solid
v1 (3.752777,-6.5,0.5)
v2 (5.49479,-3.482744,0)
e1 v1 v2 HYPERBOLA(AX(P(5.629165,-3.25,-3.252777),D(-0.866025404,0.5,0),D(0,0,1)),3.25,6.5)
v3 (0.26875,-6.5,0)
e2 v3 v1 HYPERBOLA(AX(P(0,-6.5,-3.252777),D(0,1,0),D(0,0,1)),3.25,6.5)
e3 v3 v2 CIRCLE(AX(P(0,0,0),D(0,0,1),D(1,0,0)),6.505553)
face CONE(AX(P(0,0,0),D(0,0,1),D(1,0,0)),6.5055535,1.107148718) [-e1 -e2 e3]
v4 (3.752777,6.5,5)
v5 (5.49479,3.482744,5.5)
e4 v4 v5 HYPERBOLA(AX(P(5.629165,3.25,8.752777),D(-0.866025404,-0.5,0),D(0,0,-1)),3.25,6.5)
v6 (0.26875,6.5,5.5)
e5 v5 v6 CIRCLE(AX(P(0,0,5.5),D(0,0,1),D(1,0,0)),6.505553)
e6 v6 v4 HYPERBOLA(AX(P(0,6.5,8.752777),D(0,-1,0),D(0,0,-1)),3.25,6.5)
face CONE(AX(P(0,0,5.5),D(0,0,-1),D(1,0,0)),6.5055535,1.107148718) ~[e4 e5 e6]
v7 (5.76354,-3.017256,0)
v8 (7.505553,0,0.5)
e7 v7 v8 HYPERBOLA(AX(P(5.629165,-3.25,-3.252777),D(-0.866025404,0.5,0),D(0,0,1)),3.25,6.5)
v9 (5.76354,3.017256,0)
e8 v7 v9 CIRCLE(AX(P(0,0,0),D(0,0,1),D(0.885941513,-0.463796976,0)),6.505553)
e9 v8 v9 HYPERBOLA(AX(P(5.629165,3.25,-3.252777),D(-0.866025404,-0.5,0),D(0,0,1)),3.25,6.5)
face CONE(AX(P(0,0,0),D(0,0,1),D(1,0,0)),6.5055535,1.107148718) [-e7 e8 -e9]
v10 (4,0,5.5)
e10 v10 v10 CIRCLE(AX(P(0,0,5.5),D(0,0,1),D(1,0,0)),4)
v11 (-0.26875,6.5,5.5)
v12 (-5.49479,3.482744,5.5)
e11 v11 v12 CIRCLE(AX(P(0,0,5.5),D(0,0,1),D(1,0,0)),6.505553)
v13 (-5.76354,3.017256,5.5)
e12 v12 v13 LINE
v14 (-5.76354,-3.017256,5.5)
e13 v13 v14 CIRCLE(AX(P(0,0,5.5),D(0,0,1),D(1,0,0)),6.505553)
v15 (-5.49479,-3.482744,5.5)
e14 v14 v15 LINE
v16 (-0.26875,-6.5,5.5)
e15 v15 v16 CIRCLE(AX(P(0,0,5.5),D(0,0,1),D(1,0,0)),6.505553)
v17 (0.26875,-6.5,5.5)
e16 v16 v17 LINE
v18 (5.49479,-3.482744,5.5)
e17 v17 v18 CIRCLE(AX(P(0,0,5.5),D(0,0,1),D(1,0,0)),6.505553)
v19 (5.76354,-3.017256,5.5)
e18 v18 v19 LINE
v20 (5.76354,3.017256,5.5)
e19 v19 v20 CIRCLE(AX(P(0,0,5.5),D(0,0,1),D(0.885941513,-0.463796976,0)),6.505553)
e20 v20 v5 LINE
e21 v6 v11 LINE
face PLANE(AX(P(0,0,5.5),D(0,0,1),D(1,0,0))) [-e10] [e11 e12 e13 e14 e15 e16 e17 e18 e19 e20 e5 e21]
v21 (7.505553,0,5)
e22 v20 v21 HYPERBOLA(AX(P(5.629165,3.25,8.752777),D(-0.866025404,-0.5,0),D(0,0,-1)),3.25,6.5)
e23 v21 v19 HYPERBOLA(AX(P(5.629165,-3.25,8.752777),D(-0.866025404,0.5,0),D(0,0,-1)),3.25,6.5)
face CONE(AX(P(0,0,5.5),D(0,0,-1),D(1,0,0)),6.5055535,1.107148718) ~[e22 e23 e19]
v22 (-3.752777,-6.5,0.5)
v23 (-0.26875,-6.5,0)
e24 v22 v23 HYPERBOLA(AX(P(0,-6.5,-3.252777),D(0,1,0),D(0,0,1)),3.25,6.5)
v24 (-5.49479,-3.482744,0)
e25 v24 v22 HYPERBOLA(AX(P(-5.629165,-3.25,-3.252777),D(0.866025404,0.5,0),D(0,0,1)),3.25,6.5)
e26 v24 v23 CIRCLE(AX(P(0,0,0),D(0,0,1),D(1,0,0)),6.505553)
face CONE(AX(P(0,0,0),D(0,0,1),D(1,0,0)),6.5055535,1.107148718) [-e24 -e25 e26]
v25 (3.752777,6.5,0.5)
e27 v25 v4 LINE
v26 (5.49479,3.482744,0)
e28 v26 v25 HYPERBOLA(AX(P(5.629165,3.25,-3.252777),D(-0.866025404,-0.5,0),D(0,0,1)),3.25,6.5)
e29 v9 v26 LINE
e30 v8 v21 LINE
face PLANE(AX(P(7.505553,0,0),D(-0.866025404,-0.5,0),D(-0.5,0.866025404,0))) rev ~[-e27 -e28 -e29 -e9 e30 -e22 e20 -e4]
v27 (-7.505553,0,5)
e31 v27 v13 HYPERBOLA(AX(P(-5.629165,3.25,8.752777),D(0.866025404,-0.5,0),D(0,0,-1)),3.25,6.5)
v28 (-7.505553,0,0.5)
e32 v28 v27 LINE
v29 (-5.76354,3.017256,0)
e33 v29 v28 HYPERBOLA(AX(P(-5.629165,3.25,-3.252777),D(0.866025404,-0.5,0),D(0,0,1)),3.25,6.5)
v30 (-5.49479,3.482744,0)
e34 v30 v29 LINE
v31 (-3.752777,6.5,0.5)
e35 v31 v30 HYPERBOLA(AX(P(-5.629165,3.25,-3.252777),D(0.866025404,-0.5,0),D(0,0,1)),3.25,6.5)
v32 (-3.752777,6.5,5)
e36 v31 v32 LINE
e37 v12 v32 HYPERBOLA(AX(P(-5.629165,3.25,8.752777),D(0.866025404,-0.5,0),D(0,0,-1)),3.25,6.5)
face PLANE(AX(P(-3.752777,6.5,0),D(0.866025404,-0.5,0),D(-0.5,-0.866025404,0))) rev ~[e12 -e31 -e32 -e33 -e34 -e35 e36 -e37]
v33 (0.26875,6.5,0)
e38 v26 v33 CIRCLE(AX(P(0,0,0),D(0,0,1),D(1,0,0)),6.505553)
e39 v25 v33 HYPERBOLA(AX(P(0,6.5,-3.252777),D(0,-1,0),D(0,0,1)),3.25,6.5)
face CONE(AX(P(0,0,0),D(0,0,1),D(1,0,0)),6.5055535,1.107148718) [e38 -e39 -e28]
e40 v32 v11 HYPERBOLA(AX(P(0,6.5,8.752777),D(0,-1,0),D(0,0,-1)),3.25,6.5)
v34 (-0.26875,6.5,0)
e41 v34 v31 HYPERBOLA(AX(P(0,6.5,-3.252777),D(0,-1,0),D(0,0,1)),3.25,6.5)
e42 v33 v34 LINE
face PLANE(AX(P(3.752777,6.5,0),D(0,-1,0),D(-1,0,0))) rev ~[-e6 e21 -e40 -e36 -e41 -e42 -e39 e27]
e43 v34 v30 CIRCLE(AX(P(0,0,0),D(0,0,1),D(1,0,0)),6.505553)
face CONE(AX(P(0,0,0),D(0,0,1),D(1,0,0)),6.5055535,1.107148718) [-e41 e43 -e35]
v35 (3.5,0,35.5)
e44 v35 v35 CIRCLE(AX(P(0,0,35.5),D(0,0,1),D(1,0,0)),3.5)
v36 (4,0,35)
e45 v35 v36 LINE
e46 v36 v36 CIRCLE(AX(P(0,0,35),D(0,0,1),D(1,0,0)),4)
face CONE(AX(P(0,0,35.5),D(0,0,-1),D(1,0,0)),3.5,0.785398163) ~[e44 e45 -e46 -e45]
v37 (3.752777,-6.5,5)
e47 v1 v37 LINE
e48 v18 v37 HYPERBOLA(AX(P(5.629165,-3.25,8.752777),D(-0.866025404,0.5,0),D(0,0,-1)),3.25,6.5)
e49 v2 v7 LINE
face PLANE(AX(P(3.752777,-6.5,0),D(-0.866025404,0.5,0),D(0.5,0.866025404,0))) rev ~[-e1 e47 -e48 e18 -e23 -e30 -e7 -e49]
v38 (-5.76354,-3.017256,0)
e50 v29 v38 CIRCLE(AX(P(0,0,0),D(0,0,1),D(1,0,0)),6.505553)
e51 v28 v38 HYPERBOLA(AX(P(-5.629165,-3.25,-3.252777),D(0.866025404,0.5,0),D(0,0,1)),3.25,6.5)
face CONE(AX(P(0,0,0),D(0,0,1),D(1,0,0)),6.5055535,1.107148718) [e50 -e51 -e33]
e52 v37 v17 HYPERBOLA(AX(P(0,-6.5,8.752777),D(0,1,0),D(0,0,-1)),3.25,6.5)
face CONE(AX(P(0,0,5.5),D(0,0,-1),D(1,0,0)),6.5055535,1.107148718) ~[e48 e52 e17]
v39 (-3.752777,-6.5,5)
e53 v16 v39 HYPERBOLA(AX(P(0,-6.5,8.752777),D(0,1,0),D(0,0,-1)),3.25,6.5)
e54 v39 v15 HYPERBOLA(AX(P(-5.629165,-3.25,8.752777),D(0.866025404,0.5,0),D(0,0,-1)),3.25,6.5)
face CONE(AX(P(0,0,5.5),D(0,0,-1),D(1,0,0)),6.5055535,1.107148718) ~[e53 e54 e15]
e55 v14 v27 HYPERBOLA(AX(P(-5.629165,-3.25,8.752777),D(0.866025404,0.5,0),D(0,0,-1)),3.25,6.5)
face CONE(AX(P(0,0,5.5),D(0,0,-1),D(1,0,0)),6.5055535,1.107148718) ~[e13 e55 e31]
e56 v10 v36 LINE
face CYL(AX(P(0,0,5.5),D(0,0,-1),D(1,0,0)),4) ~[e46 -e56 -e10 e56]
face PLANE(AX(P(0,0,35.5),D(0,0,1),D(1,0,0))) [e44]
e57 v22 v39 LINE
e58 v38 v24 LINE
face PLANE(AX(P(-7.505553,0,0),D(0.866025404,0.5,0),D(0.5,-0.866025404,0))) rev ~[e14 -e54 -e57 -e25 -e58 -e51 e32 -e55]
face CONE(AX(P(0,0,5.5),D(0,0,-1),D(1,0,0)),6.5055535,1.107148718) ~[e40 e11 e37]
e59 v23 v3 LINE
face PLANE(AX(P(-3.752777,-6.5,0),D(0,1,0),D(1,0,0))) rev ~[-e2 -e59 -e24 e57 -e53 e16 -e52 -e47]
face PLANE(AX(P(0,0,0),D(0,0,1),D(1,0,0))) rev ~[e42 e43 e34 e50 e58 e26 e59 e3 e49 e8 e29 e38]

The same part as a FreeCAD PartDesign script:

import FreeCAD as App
import Part
import Sketcher
from FreeCAD import Vector
Q = App.Units.Quantity


def add_polygon(sketch, points):
    """Adds a closed chain of lines whose ends are joined by coincident constraints."""
    first, n = sketch.GeometryCount, len(points)
    for a, b in zip(points, points[1:] + points[:1]):
        sketch.addGeometry(Part.LineSegment(App.Vector(*a, 0), App.Vector(*b, 0)), False)
    for i in range(n):
        sketch.addConstraint(Sketcher.Constraint("Coincident", first + i, 2, first + (i + 1) % n, 1))

doc = App.newDocument("Part")
params = doc.addObject("Spreadsheet::Sheet", "Params")
for row, (alias, value) in enumerate([
    ("pad1_length", "5.5 mm"),
    ("sketch2_diameter", "8 mm"),
    ("pad2_length", "30 mm"),
    ("sketch3_width", "1 mm"),
    ("sketch3_width2", "0.5 mm"),
    ("groove_angle", "360 deg"),
], start=1):
    params.set(f"A{row}", alias)
    params.set(f"B{row}", "=" + value)
    params.setAlias(f"B{row}", alias)

body = doc.addObject("PartDesign::Body", "Body")

sketch1 = doc.addObject("Sketcher::SketchObject", "Sketch")
body.addObject(sketch1)
sketch1.AttachmentSupport = (doc.XY_Plane, [""])
sketch1.MapMode = "FlatFace"
add_polygon(sketch1, [(8, 0), (4, 6), (-4, 6), (-8, 0), (-4, -6), (4, -6)])
sketch1.addConstraint(Sketcher.Constraint("Horizontal", 1))
sketch1.addConstraint(Sketcher.Constraint("Horizontal", 4))
sketch1.addConstraint(Sketcher.Constraint("Symmetric", 0, 2, 3, 2, -1, 1))
sketch1.addConstraint(Sketcher.Constraint("Symmetric", 2, 2, 5, 2, -1, 1))
sketch1.addConstraint(Sketcher.Constraint("PointOnObject", 2, 2, -1))
sketch1.addConstraint(Sketcher.Constraint("Parallel", 2, 5))
sketch1.addConstraint(Sketcher.Constraint("Vertical", 1, 2, 3, 2))
sketch1.addConstraint(Sketcher.Constraint("Angle", 0, Q("120 deg")))
sketch1.addConstraint(Sketcher.Constraint("DistanceY", 3, 2, 1, 2, Q("13 mm")))
sketch1.addConstraint(Sketcher.Constraint("DistanceX", 1, 2, 1, 1, Q("7.505554 mm")))
pad1 = doc.addObject("PartDesign::Pad", "Pad")
body.addObject(pad1)
pad1.Profile = sketch1
pad1.setExpression("Length", "Params.pad1_length")

sketch2 = doc.addObject("Sketcher::SketchObject", "Sketch001")
body.addObject(sketch2)
sketch2.AttachmentSupport = (doc.XY_Plane, [""])
sketch2.MapMode = "FlatFace"
sketch2.AttachmentOffset = App.Placement(Vector(0, 0, 5.5), App.Rotation())
sketch2.addGeometry(Part.Circle(Vector(0, 0, 0), Vector(0, 0, 1), 4), False)
sketch2.addConstraint(Sketcher.Constraint("Coincident", 0, 3, -1, 1))
sketch2.addConstraint(Sketcher.Constraint("Diameter", 0, Q("8 mm")))
sketch2.setExpression("Constraints[1]", "Params.sketch2_diameter")
pad2 = doc.addObject("PartDesign::Pad", "Pad001")
body.addObject(pad2)
pad2.Profile = sketch2
pad2.setExpression("Length", "Params.pad2_length")

sketch3 = doc.addObject("Sketcher::SketchObject", "Sketch002")
body.addObject(sketch3)
sketch3.AttachmentSupport = (doc.XZ_Plane, [""])
sketch3.MapMode = "FlatFace"
add_polygon(sketch3, [(4, 35.5), (3.5, 35.5), (4, 35)])
add_polygon(sketch3, [(7.5, 5.5), (6.5, 5.5), (7.5, 5)])
add_polygon(sketch3, [(6.5, 0), (7.5, 0), (7.5, 0.5)])
sketch3.addConstraint(Sketcher.Constraint("Horizontal", 0))
sketch3.addConstraint(Sketcher.Constraint("Vertical", 2))
sketch3.addConstraint(Sketcher.Constraint("Horizontal", 3))
sketch3.addConstraint(Sketcher.Constraint("Vertical", 5))
sketch3.addConstraint(Sketcher.Constraint("Horizontal", 6))
sketch3.addConstraint(Sketcher.Constraint("Vertical", 7))
sketch3.addConstraint(Sketcher.Constraint("PointOnObject", 6, 2, -1))
sketch3.addConstraint(Sketcher.Constraint("Vertical", 5, 2, 6, 2))
sketch3.addConstraint(Sketcher.Constraint("Vertical", 3, 2, 8, 2))
sketch3.addConstraint(Sketcher.Constraint("Equal", 0, 2))
sketch3.addConstraint(Sketcher.Constraint("Equal", 2, 5))
sketch3.addConstraint(Sketcher.Constraint("Equal", 5, 7))
sketch3.addConstraint(Sketcher.Constraint("DistanceX", 3, 2, 3, 1, Q("1 mm")))
sketch3.addConstraint(Sketcher.Constraint("DistanceX", 0, 2, 0, 1, Q("0.5 mm")))
sketch3.addConstraint(Sketcher.Constraint("DistanceX", -1, 1, 1, 2, Q("4 mm")))
sketch3.addConstraint(Sketcher.Constraint("DistanceY", -1, 1, 1, 2, Q("35 mm")))
sketch3.addConstraint(Sketcher.Constraint("DistanceY", -1, 1, 4, 2, Q("5 mm")))
sketch3.addConstraint(Sketcher.Constraint("DistanceX", -1, 1, 3, 2, Q("6.505554 mm")))
sketch3.setExpression("Constraints[21]", "Params.sketch3_width")
sketch3.setExpression("Constraints[22]", "Params.sketch3_width2")
groove = doc.addObject("PartDesign::Groove", "Groove")
body.addObject(groove)
groove.Profile = sketch3
groove.ReferenceAxis = (sketch3, ["V_Axis"])
groove.setExpression("Angle", "Params.groove_angle")

doc.recompute()
